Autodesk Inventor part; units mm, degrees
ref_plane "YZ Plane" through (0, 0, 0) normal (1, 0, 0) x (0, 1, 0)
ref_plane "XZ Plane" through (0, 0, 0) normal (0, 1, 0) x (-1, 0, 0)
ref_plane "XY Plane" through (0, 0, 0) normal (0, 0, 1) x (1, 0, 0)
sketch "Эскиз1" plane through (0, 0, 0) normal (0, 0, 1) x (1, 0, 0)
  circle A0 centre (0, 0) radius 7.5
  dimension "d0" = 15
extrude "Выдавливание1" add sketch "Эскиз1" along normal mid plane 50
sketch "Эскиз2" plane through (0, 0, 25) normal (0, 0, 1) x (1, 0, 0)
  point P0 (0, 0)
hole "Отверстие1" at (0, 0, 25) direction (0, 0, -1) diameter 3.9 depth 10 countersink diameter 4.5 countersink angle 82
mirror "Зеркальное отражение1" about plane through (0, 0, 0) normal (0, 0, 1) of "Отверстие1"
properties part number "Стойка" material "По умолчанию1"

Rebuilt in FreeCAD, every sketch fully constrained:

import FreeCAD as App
import Part
import Sketcher
Q = App.Units.Quantity

doc = App.newDocument("Part")
params = doc.addObject("Spreadsheet::Sheet", "Params")
for row, (alias, value) in enumerate([
    ("sketch1_diameter", "15 mm"),
    ("pad1_length", "50 mm"),
    ("sketch2_diameter", "3.9 mm"),
    ("hole_diameter", "3.9 mm"),
    ("hole_depth", "10 mm"),
    ("hole_csink_diameter", "4.5 mm"),
], start=1):
    params.set(f"A{row}", alias)
    params.set(f"B{row}", "=" + value)
    params.setAlias(f"B{row}", alias)

body = doc.addObject("PartDesign::Body", "Body")

sketch1 = doc.addObject("Sketcher::SketchObject", "Sketch")
body.addObject(sketch1)
sketch1.AttachmentSupport = (doc.XY_Plane, [""])
sketch1.MapMode = "FlatFace"
sketch1.addGeometry(Part.Circle(App.Vector(0, 0, 0), App.Vector(0, 0, 1), 8), False)
sketch1.addConstraint([
    Sketcher.Constraint("Coincident", 0, 3, -1, 1),
    Sketcher.Constraint("Diameter", 0, Q("15 mm")),
])
sketch1.setExpression("Constraints[1]", "Params.sketch1_diameter")
pad1 = doc.addObject("PartDesign::Pad", "Pad")
body.addObject(pad1)
pad1.Profile = sketch1
pad1.setExpression("Length", "Params.pad1_length")
pad1.Midplane = True

sketch2 = doc.addObject("Sketcher::SketchObject", "Sketch001")
body.addObject(sketch2)
sketch2.AttachmentSupport = (doc.XY_Plane, [""])
sketch2.MapMode = "FlatFace"
sketch2.AttachmentOffset = App.Placement(App.Vector(0, 0, 25), App.Rotation())
sketch2.addGeometry(Part.Circle(App.Vector(0, 0, 0), App.Vector(0, 0, 1), 1.9), False)
sketch2.addConstraint([
    Sketcher.Constraint("Coincident", 0, 3, -1, 1),
    Sketcher.Constraint("Diameter", 0, Q("3.9 mm")),
])
sketch2.setExpression("Constraints[1]", "Params.sketch2_diameter")
doc.recompute()
hole = doc.addObject("PartDesign::Hole", "Hole")
body.addObject(hole)
hole.Profile = sketch2
hole.ThreadType = "None"
hole.setExpression("Diameter", "Params.hole_diameter")
hole.DepthType = "Dimension"
hole.setExpression("Depth", "Params.hole_depth")
hole.DrillPoint = "Flat"
hole.HoleCutType = "Countersink"
hole.setExpression("HoleCutDiameter", "Params.hole_csink_diameter")
hole.HoleCutCountersinkAngle = 82
doc.recompute()

mirrored = doc.addObject("PartDesign::Mirrored", "Mirrored")
body.addObject(mirrored)
mirrored.Originals = [hole]
mirrored.MirrorPlane = (doc.XY_Plane, [""])
body.Tip = mirrored

doc.recompute()
